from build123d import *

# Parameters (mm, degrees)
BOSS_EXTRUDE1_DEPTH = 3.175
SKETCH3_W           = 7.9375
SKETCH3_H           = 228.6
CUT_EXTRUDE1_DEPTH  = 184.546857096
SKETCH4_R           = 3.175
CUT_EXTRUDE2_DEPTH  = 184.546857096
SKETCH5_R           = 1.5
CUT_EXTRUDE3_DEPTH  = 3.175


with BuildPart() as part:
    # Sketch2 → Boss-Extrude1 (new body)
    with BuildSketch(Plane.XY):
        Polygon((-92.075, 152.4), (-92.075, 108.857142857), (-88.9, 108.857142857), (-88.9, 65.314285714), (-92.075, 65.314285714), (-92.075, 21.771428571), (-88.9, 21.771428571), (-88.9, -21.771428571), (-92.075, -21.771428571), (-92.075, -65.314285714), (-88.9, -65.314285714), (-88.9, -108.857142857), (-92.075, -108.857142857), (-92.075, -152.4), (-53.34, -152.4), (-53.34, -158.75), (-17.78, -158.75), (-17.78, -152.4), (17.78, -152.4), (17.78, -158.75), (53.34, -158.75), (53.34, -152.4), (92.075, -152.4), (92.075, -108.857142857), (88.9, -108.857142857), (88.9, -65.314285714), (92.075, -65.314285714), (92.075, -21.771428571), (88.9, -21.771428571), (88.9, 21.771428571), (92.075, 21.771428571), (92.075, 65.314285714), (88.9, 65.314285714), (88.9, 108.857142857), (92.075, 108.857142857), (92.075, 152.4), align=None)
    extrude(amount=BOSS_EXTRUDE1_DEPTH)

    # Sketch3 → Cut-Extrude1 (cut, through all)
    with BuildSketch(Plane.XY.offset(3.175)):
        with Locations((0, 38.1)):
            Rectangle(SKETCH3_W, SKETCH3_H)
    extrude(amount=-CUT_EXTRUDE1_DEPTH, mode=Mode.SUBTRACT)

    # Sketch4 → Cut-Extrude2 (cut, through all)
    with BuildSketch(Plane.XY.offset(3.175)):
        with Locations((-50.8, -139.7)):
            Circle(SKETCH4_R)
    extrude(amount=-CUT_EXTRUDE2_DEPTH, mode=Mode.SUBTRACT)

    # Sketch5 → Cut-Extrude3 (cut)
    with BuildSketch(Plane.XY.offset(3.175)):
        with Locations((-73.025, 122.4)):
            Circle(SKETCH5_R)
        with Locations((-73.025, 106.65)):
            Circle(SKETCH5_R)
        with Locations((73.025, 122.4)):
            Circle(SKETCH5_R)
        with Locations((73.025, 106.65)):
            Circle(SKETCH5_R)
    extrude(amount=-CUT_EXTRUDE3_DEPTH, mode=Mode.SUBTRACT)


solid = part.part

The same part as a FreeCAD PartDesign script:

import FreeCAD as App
import Part
import Sketcher
Q = App.Units.Quantity

doc = App.newDocument("Part")
body = doc.addObject("PartDesign::Body", "Body")

# Sketch on XY plane
sketch1 = doc.addObject("Sketcher::SketchObject", "Sketch")
body.addObject(sketch1)
sketch1.AttachmentSupport = (doc.XY_Plane, [""])
sketch1.MapMode = "FlatFace"
sketch1.addGeometry(Part.LineSegment(App.Vector(-92.075, 152.4, 0), App.Vector(-92.075, 108.857143, 0)), False)
sketch1.addGeometry(Part.LineSegment(App.Vector(-92.075, 108.857143, 0), App.Vector(-88.9, 108.857143, 0)), False)
sketch1.addGeometry(Part.LineSegment(App.Vector(-88.9, 108.857143, 0), App.Vector(-88.9, 65.314286, 0)), False)
sketch1.addGeometry(Part.LineSegment(App.Vector(-88.9, 65.314286, 0), App.Vector(-92.075, 65.314286, 0)), False)
sketch1.addGeometry(Part.LineSegment(App.Vector(-92.075, 65.314286, 0), App.Vector(-92.075, 21.771429, 0)), False)
sketch1.addGeometry(Part.LineSegment(App.Vector(-92.075, 21.771429, 0), App.Vector(-88.9, 21.771429, 0)), False)
sketch1.addGeometry(Part.LineSegment(App.Vector(-88.9, 21.771429, 0), App.Vector(-88.9, -21.771429, 0)), False)
sketch1.addGeometry(Part.LineSegment(App.Vector(-88.9, -21.771429, 0), App.Vector(-92.075, -21.771429, 0)), False)
sketch1.addGeometry(Part.LineSegment(App.Vector(-92.075, -21.771429, 0), App.Vector(-92.075, -65.314286, 0)), False)
sketch1.addGeometry(Part.LineSegment(App.Vector(-92.075, -65.314286, 0), App.Vector(-88.9, -65.314286, 0)), False)
sketch1.addGeometry(Part.LineSegment(App.Vector(-88.9, -65.314286, 0), App.Vector(-88.9, -108.857143, 0)), False)
sketch1.addGeometry(Part.LineSegment(App.Vector(-88.9, -108.857143, 0), App.Vector(-92.075, -108.857143, 0)), False)
sketch1.addGeometry(Part.LineSegment(App.Vector(-92.075, -108.857143, 0), App.Vector(-92.075, -152.4, 0)), False)
sketch1.addGeometry(Part.LineSegment(App.Vector(-92.075, -152.4, 0), App.Vector(-53.34, -152.4, 0)), False)
sketch1.addGeometry(Part.LineSegment(App.Vector(-53.34, -152.4, 0), App.Vector(-53.34, -158.75, 0)), False)
sketch1.addGeometry(Part.LineSegment(App.Vector(-53.34, -158.75, 0), App.Vector(-17.78, -158.75, 0)), False)
sketch1.addGeometry(Part.LineSegment(App.Vector(-17.78, -158.75, 0), App.Vector(-17.78, -152.4, 0)), False)
sketch1.addGeometry(Part.LineSegment(App.Vector(-17.78, -152.4, 0), App.Vector(17.78, -152.4, 0)), False)
sketch1.addGeometry(Part.LineSegment(App.Vector(17.78, -152.4, 0), App.Vector(17.78, -158.75, 0)), False)
sketch1.addGeometry(Part.LineSegment(App.Vector(17.78, -158.75, 0), App.Vector(53.34, -158.75, 0)), False)
sketch1.addGeometry(Part.LineSegment(App.Vector(53.34, -158.75, 0), App.Vector(53.34, -152.4, 0)), False)
sketch1.addGeometry(Part.LineSegment(App.Vector(53.34, -152.4, 0), App.Vector(92.075, -152.4, 0)), False)
sketch1.addGeometry(Part.LineSegment(App.Vector(92.075, -152.4, 0), App.Vector(92.075, -108.857143, 0)), False)
sketch1.addGeometry(Part.LineSegment(App.Vector(92.075, -108.857143, 0), App.Vector(88.9, -108.857143, 0)), False)
sketch1.addGeometry(Part.LineSegment(App.Vector(88.9, -108.857143, 0), App.Vector(88.9, -65.314286, 0)), False)
sketch1.addGeometry(Part.LineSegment(App.Vector(88.9, -65.314286, 0), App.Vector(92.075, -65.314286, 0)), False)
sketch1.addGeometry(Part.LineSegment(App.Vector(92.075, -65.314286, 0), App.Vector(92.075, -21.771429, 0)), False)
sketch1.addGeometry(Part.LineSegment(App.Vector(92.075, -21.771429, 0), App.Vector(88.9, -21.771429, 0)), False)
sketch1.addGeometry(Part.LineSegment(App.Vector(88.9, -21.771429, 0), App.Vector(88.9, 21.771429, 0)), False)
sketch1.addGeometry(Part.LineSegment(App.Vector(88.9, 21.771429, 0), App.Vector(92.075, 21.771429, 0)), False)
sketch1.addGeometry(Part.LineSegment(App.Vector(92.075, 21.771429, 0), App.Vector(92.075, 65.314286, 0)), False)
sketch1.addGeometry(Part.LineSegment(App.Vector(92.075, 65.314286, 0), App.Vector(88.9, 65.314286, 0)), False)
sketch1.addGeometry(Part.LineSegment(App.Vector(88.9, 65.314286, 0), App.Vector(88.9, 108.857143, 0)), False)
sketch1.addGeometry(Part.LineSegment(App.Vector(88.9, 108.857143, 0), App.Vector(92.075, 108.857143, 0)), False)
sketch1.addGeometry(Part.LineSegment(App.Vector(92.075, 108.857143, 0), App.Vector(92.075, 152.4, 0)), False)
sketch1.addGeometry(Part.LineSegment(App.Vector(92.075, 152.4, 0), App.Vector(-92.075, 152.4, 0)), False)
sketch1.addConstraint(Sketcher.Constraint("Coincident", 0, 2, 1, 1))
sketch1.addConstraint(Sketcher.Constraint("Coincident", 1, 2, 2, 1))
sketch1.addConstraint(Sketcher.Constraint("Coincident", 2, 2, 3, 1))
sketch1.addConstraint(Sketcher.Constraint("Coincident", 3, 2, 4, 1))
sketch1.addConstraint(Sketcher.Constraint("Coincident", 4, 2, 5, 1))
sketch1.addConstraint(Sketcher.Constraint("Coincident", 5, 2, 6, 1))
sketch1.addConstraint(Sketcher.Constraint("Coincident", 6, 2, 7, 1))
sketch1.addConstraint(Sketcher.Constraint("Coincident", 7, 2, 8, 1))
sketch1.addConstraint(Sketcher.Constraint("Coincident", 8, 2, 9, 1))
sketch1.addConstraint(Sketcher.Constraint("Coincident", 9, 2, 10, 1))
sketch1.addConstraint(Sketcher.Constraint("Coincident", 10, 2, 11, 1))
sketch1.addConstraint(Sketcher.Constraint("Coincident", 11, 2, 12, 1))
sketch1.addConstraint(Sketcher.Constraint("Coincident", 12, 2, 13, 1))
sketch1.addConstraint(Sketcher.Constraint("Coincident", 13, 2, 14, 1))
sketch1.addConstraint(Sketcher.Constraint("Coincident", 14, 2, 15, 1))
sketch1.addConstraint(Sketcher.Constraint("Coincident", 15, 2, 16, 1))
sketch1.addConstraint(Sketcher.Constraint("Coincident", 16, 2, 17, 1))
sketch1.addConstraint(Sketcher.Constraint("Coincident", 17, 2, 18, 1))
sketch1.addConstraint(Sketcher.Constraint("Coincident", 18, 2, 19, 1))
sketch1.addConstraint(Sketcher.Constraint("Coincident", 19, 2, 20, 1))
sketch1.addConstraint(Sketcher.Constraint("Coincident", 20, 2, 21, 1))
sketch1.addConstraint(Sketcher.Constraint("Coincident", 21, 2, 22, 1))
sketch1.addConstraint(Sketcher.Constraint("Coincident", 22, 2, 23, 1))
sketch1.addConstraint(Sketcher.Constraint("Coincident", 23, 2, 24, 1))
sketch1.addConstraint(Sketcher.Constraint("Coincident", 24, 2, 25, 1))
sketch1.addConstraint(Sketcher.Constraint("Coincident", 25, 2, 26, 1))
sketch1.addConstraint(Sketcher.Constraint("Coincident", 26, 2, 27, 1))
sketch1.addConstraint(Sketcher.Constraint("Coincident", 27, 2, 28, 1))
sketch1.addConstraint(Sketcher.Constraint("Coincident", 28, 2, 29, 1))
sketch1.addConstraint(Sketcher.Constraint("Coincident", 29, 2, 30, 1))
sketch1.addConstraint(Sketcher.Constraint("Coincident", 30, 2, 31, 1))
sketch1.addConstraint(Sketcher.Constraint("Coincident", 31, 2, 32, 1))
sketch1.addConstraint(Sketcher.Constraint("Coincident", 32, 2, 33, 1))
sketch1.addConstraint(Sketcher.Constraint("Coincident", 33, 2, 34, 1))
sketch1.addConstraint(Sketcher.Constraint("Coincident", 34, 2, 35, 1))
sketch1.addConstraint(Sketcher.Constraint("Coincident", 35, 2, 0, 1))
sketch1.addConstraint(Sketcher.Constraint("Vertical", 0))
sketch1.addConstraint(Sketcher.Constraint("Horizontal", 1))
sketch1.addConstraint(Sketcher.Constraint("Vertical", 2))
sketch1.addConstraint(Sketcher.Constraint("Horizontal", 3))
sketch1.addConstraint(Sketcher.Constraint("Vertical", 4))
sketch1.addConstraint(Sketcher.Constraint("Horizontal", 5))
sketch1.addConstraint(Sketcher.Constraint("Vertical", 6))
sketch1.addConstraint(Sketcher.Constraint("Horizontal", 7))
sketch1.addConstraint(Sketcher.Constraint("Vertical", 8))
sketch1.addConstraint(Sketcher.Constraint("Horizontal", 9))
sketch1.addConstraint(Sketcher.Constraint("Vertical", 10))
sketch1.addConstraint(Sketcher.Constraint("Horizontal", 11))
sketch1.addConstraint(Sketcher.Constraint("Vertical", 12))
sketch1.addConstraint(Sketcher.Constraint("Horizontal", 13))
sketch1.addConstraint(Sketcher.Constraint("Vertical", 14))
sketch1.addConstraint(Sketcher.Constraint("Horizontal", 15))
sketch1.addConstraint(Sketcher.Constraint("Vertical", 16))
sketch1.addConstraint(Sketcher.Constraint("Horizontal", 17))
sketch1.addConstraint(Sketcher.Constraint("Vertical", 18))
sketch1.addConstraint(Sketcher.Constraint("Horizontal", 19))
sketch1.addConstraint(Sketcher.Constraint("Vertical", 20))
sketch1.addConstraint(Sketcher.Constraint("Horizontal", 21))
sketch1.addConstraint(Sketcher.Constraint("Vertical", 22))
sketch1.addConstraint(Sketcher.Constraint("Horizontal", 23))
sketch1.addConstraint(Sketcher.Constraint("Vertical", 24))
sketch1.addConstraint(Sketcher.Constraint("Horizontal", 25))
sketch1.addConstraint(Sketcher.Constraint("Vertical", 26))
sketch1.addConstraint(Sketcher.Constraint("Horizontal", 27))
sketch1.addConstraint(Sketcher.Constraint("Vertical", 28))
sketch1.addConstraint(Sketcher.Constraint("Horizontal", 29))
sketch1.addConstraint(Sketcher.Constraint("Vertical", 30))
sketch1.addConstraint(Sketcher.Constraint("Horizontal", 31))
sketch1.addConstraint(Sketcher.Constraint("Vertical", 32))
sketch1.addConstraint(Sketcher.Constraint("Horizontal", 33))
sketch1.addConstraint(Sketcher.Constraint("Vertical", 34))
sketch1.addConstraint(Sketcher.Constraint("Horizontal", 35))
sketch1.addConstraint(Sketcher.Constraint("Symmetric", 0, 2, 22, 2, -1, 1))
sketch1.addConstraint(Sketcher.Constraint("Symmetric", 2, 2, 24, 2, -1, 1))
sketch1.addConstraint(Sketcher.Constraint("Symmetric", 4, 2, 26, 2, -1, 1))
sketch1.addConstraint(Sketcher.Constraint("Symmetric", 6, 2, 28, 2, -1, 1))
sketch1.addConstraint(Sketcher.Constraint("Symmetric", 8, 2, 30, 2, -1, 1))
sketch1.addConstraint(Sketcher.Constraint("Symmetric", 10, 2, 32, 2, -1, 1))
sketch1.addConstraint(Sketcher.Constraint("Symmetric", 12, 2, 34, 2, -1, 1))
sketch1.addConstraint(Sketcher.Constraint("Symmetric", 15, 2, 18, 2, -2))
sketch1.addConstraint(Sketcher.Constraint("Symmetric", 13, 2, 20, 2, -2))
sketch1.addConstraint(Sketcher.Constraint("Symmetric", 11, 2, 22, 2, -2))
sketch1.addConstraint(Sketcher.Constraint("Symmetric", 9, 2, 24, 2, -2))
sketch1.addConstraint(Sketcher.Constraint("Symmetric", 7, 2, 26, 2, -2))
sketch1.addConstraint(Sketcher.Constraint("Horizontal", 13, 2, 16, 2))
sketch1.addConstraint(Sketcher.Constraint("Vertical", 0, 2, 3, 2))
sketch1.addConstraint(Sketcher.Constraint("Vertical", 2, 2, 5, 2))
sketch1.addConstraint(Sketcher.Constraint("Equal", 15, 17))
sketch1.addConstraint(Sketcher.Constraint("Equal", 0, 2))
sketch1.addConstraint(Sketcher.Constraint("Equal", 2, 4))
sketch1.addConstraint(Sketcher.Constraint("Equal", 4, 6))
sketch1.addConstraint(Sketcher.Constraint("DistanceX", 15, 1, 15, 2, Q("1.4 in")))
sketch1.addConstraint(Sketcher.Constraint("DistanceY", 12, 2, -1, 1, Q("6 in")))
sketch1.addConstraint(Sketcher.Constraint("DistanceX", 35, 2, 35, 1, Q("7.25 in")))
sketch1.addConstraint(Sketcher.Constraint("DistanceY", 14, 2, 14, 1, Q("0.25 in")))
sketch1.addConstraint(Sketcher.Constraint("DistanceX", 1, 2, -1, 1, Q("3.5 in")))
pad1 = doc.addObject("PartDesign::Pad", "Pad")
body.addObject(pad1)
pad1.Profile = sketch1
pad1.Length = Q("0.125 in")

# Sketch on XY plane
sketch2 = doc.addObject("Sketcher::SketchObject", "Sketch001")
body.addObject(sketch2)
sketch2.AttachmentSupport = (doc.XY_Plane, [""])
sketch2.MapMode = "FlatFace"
sketch2.AttachmentOffset = App.Placement(App.Vector(0, 0, 0.125 * 25.4), App.Rotation())
sketch2.addGeometry(Part.LineSegment(App.Vector(-3.96875, 152.4, 0), App.Vector(-3.96875, -76.2, 0)), False)
sketch2.addGeometry(Part.LineSegment(App.Vector(-3.96875, -76.2, 0), App.Vector(3.96875, -76.2, 0)), False)
sketch2.addGeometry(Part.LineSegment(App.Vector(3.96875, -76.2, 0), App.Vector(3.96875, 152.4, 0)), False)
sketch2.addGeometry(Part.LineSegment(App.Vector(3.96875, 152.4, 0), App.Vector(-3.96875, 152.4, 0)), False)
sketch2.addConstraint(Sketcher.Constraint("Coincident", 0, 2, 1, 1))
sketch2.addConstraint(Sketcher.Constraint("Coincident", 1, 2, 2, 1))
sketch2.addConstraint(Sketcher.Constraint("Coincident", 2, 2, 3, 1))
sketch2.addConstraint(Sketcher.Constraint("Coincident", 3, 2, 0, 1))
sketch2.addConstraint(Sketcher.Constraint("Vertical", 0))
sketch2.addConstraint(Sketcher.Constraint("Horizontal", 1))
sketch2.addConstraint(Sketcher.Constraint("Vertical", 2))
sketch2.addConstraint(Sketcher.Constraint("Horizontal", 3))
sketch2.addConstraint(Sketcher.Constraint("DistanceY", 0, 2, 0, 1, Q("9 in")))
sketch2.addConstraint(Sketcher.Constraint("DistanceY", 0, 2, -1, 1, Q("3 in")))
sketch2.addConstraint(Sketcher.Constraint("DistanceX", 1, 1, 1, 2, Q("0.3125 in")))
sketch2.addConstraint(Sketcher.Constraint("DistanceX", 0, 2, -1, 1, Q("0.15625 in")))
pocket1 = doc.addObject("PartDesign::Pocket", "Pocket")
body.addObject(pocket1)
pocket1.Profile = sketch2
pocket1.Type = "ThroughAll"

# Sketch on XY plane
sketch3 = doc.addObject("Sketcher::SketchObject", "Sketch002")
body.addObject(sketch3)
sketch3.AttachmentSupport = (doc.XY_Plane, [""])
sketch3.MapMode = "FlatFace"
sketch3.AttachmentOffset = App.Placement(App.Vector(0, 0, 0.125 * 25.4), App.Rotation())
sketch3.addGeometry(Part.Circle(App.Vector(-50.8, -139.7, 0), App.Vector(0, 0, 1), 3.175), False)
sketch3.addConstraint(Sketcher.Constraint("Diameter", 0, Q("0.25 in")))
sketch3.addConstraint(Sketcher.Constraint("DistanceX", 0, 3, -1, 1, Q("2 in")))
sketch3.addConstraint(Sketcher.Constraint("DistanceY", 0, 3, -1, 1, Q("5.5 in")))
pocket2 = doc.addObject("PartDesign::Pocket", "Pocket001")
body.addObject(pocket2)
pocket2.Profile = sketch3
pocket2.Type = "ThroughAll"

# Sketch on XY plane
sketch4 = doc.addObject("Sketcher::SketchObject", "Sketch003")
body.addObject(sketch4)
sketch4.AttachmentSupport = (doc.XY_Plane, [""])
sketch4.MapMode = "FlatFace"
sketch4.AttachmentOffset = App.Placement(App.Vector(0, 0, 0.125 * 25.4), App.Rotation())
sketch4.addGeometry(Part.Circle(App.Vector(-73.025, 122.4, 0), App.Vector(0, 0, 1), 1.5), False)
sketch4.addGeometry(Part.Circle(App.Vector(-73.025, 106.65, 0), App.Vector(0, 0, 1), 1.5), False)
sketch4.addGeometry(Part.Circle(App.Vector(73.025, 122.4, 0), App.Vector(0, 0, 1), 1.5), False)
sketch4.addGeometry(Part.Circle(App.Vector(73.025, 106.65, 0), App.Vector(0, 0, 1), 1.5), False)
sketch4.addConstraint(Sketcher.Constraint("Equal", 0, 1))
sketch4.addConstraint(Sketcher.Constraint("Equal", 1, 2))
sketch4.addConstraint(Sketcher.Constraint("Equal", 2, 3))
sketch4.addConstraint(Sketcher.Constraint("Symmetric", 0, 3, 2, 3, -2))
sketch4.addConstraint(Sketcher.Constraint("Symmetric", 1, 3, 3, 3, -2))
sketch4.addConstraint(Sketcher.Constraint("Vertical", 0, 3, 1, 3))
sketch4.addConstraint(Sketcher.Constraint("Diameter", 0, 3.0))
sketch4.addConstraint(Sketcher.Constraint("DistanceX", 0, 3, 2, 3, Q("5.75 in")))
sketch4.addConstraint(Sketcher.Constraint("DistanceY", -1, 1, 0, 3, 122.4))
sketch4.addConstraint(Sketcher.Constraint("DistanceY", -1, 1, 1, 3, 106.65))
pocket3 = doc.addObject("PartDesign::Pocket", "Pocket002")
body.addObject(pocket3)
pocket3.Profile = sketch4
pocket3.Length = Q("0.125 in")

doc.recompute()
